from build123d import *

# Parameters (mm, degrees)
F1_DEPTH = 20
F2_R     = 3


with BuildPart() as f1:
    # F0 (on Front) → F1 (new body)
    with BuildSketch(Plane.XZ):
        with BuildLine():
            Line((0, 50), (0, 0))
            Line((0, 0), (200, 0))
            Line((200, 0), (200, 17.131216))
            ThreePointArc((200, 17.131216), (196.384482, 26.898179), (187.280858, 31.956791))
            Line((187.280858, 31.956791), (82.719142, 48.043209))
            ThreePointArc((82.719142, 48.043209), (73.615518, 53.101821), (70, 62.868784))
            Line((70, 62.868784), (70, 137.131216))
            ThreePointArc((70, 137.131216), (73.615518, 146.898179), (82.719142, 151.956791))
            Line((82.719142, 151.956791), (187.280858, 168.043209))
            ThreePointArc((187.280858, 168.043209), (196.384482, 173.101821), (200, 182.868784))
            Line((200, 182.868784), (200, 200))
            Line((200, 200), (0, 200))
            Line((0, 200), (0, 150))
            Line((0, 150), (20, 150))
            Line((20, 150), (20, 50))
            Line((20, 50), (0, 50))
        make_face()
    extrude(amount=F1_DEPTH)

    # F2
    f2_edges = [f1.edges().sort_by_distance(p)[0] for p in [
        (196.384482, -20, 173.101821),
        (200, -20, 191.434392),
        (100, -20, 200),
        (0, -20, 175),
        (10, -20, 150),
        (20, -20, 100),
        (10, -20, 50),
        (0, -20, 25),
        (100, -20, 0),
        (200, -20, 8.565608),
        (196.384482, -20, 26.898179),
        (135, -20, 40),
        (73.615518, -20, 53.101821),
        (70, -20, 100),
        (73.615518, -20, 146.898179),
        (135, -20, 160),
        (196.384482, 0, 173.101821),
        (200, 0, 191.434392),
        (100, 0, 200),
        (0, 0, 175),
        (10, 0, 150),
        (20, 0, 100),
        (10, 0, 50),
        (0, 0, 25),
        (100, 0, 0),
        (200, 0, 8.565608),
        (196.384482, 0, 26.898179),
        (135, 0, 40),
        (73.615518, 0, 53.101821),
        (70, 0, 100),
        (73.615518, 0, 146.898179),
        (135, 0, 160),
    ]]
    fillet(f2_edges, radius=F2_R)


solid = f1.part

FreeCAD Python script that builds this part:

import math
import FreeCAD as App
import Part
import Sketcher
Q = App.Units.Quantity


def edges_at(feature, points):
    """Names of the edges that pass closest to the given points."""
    edges = feature.Shape.Edges
    near = lambda p: min(range(len(edges)), key=lambda i: edges[i].distToShape(Part.Vertex(*p))[0])
    return sorted({f"Edge{near(p) + 1}" for p in points})

doc = App.newDocument("Part")
body = doc.addObject("PartDesign::Body", "Body")

sketch1 = body.newObject("Sketcher::SketchObject", "Sketch")
sketch1.AttachmentSupport = (doc.getObject("XZ_Plane"), [""])
sketch1.MapMode = "FlatFace"
sketch1.addGeometry([
    Part.LineSegment(App.Vector(0, 50, 0), App.Vector(0, 0, 0)),
    Part.LineSegment(App.Vector(0, 0, 0), App.Vector(200, 0, 0)),
    Part.LineSegment(App.Vector(200, 0, 0), App.Vector(200, 17.131216, 0)),
    Part.ArcOfCircle(Part.Circle(App.Vector(185.000001, 17.131216, 0), App.Vector(0, 0, 1), 14.999999), math.radians(0), math.radians(81.253839)),
    Part.LineSegment(App.Vector(187.280858, 31.956791, 0), App.Vector(82.719142, 48.043209, 0)),
    Part.ArcOfCircle(Part.Circle(App.Vector(84.999999, 62.868784, 0), App.Vector(0, 0, 1), 14.999999), math.radians(180), math.radians(261.253839)),
    Part.LineSegment(App.Vector(70, 62.868784, 0), App.Vector(70, 137.131216, 0)),
    Part.ArcOfCircle(Part.Circle(App.Vector(84.999999, 137.131216, 0), App.Vector(0, 0, 1), 14.999999), math.radians(98.746161), math.radians(180)),
    Part.LineSegment(App.Vector(82.719142, 151.956791, 0), App.Vector(187.280858, 168.043209, 0)),
    Part.ArcOfCircle(Part.Circle(App.Vector(185.000001, 182.868784, 0), App.Vector(0, 0, 1), 14.999999), math.radians(-81.253839), math.radians(0)),
    Part.LineSegment(App.Vector(200, 182.868784, 0), App.Vector(200, 200, 0)),
    Part.LineSegment(App.Vector(200, 200, 0), App.Vector(0, 200, 0)),
    Part.LineSegment(App.Vector(0, 200, 0), App.Vector(0, 150, 0)),
    Part.LineSegment(App.Vector(0, 150, 0), App.Vector(20, 150, 0)),
    Part.LineSegment(App.Vector(20, 150, 0), App.Vector(20, 50, 0)),
    Part.LineSegment(App.Vector(20, 50, 0), App.Vector(0, 50, 0)),
], False)
sketch1.addConstraint([
    Sketcher.Constraint("Coincident", 0, 2, 1, 1),
    Sketcher.Constraint("Coincident", 1, 2, 2, 1),
    Sketcher.Constraint("Tangent", 2, 2, 3, 1),
    Sketcher.Constraint("Tangent", 3, 2, 4, 1),
    Sketcher.Constraint("Tangent", 4, 2, 5, 2),
    Sketcher.Constraint("Tangent", 5, 1, 6, 1),
    Sketcher.Constraint("Tangent", 6, 2, 7, 2),
    Sketcher.Constraint("Tangent", 7, 1, 8, 1),
    Sketcher.Constraint("Tangent", 8, 2, 9, 1),
    Sketcher.Constraint("Tangent", 9, 2, 10, 1),
    Sketcher.Constraint("Coincident", 10, 2, 11, 1),
    Sketcher.Constraint("Coincident", 11, 2, 12, 1),
    Sketcher.Constraint("Coincident", 12, 2, 13, 1),
    Sketcher.Constraint("Coincident", 13, 2, 14, 1),
    Sketcher.Constraint("Coincident", 14, 2, 15, 1),
    Sketcher.Constraint("Coincident", 15, 2, 0, 1),
    Sketcher.Constraint("Vertical", 0),
    Sketcher.Constraint("Horizontal", 1),
    Sketcher.Constraint("Vertical", 2),
    Sketcher.Constraint("Vertical", 6),
    Sketcher.Constraint("Vertical", 10),
    Sketcher.Constraint("Horizontal", 11),
    Sketcher.Constraint("Vertical", 12),
    Sketcher.Constraint("Horizontal", 13),
    Sketcher.Constraint("Vertical", 14),
    Sketcher.Constraint("Horizontal", 15),
    Sketcher.Constraint("Coincident", 0, 2, -1, 1),
    Sketcher.Constraint("Equal", 3, 5),
    Sketcher.Constraint("Equal", 5, 7),
    Sketcher.Constraint("Equal", 7, 9),
    Sketcher.Constraint("PointOnObject", 11, 2, -2),
    Sketcher.Constraint("Vertical", 3, 3, 9, 3),
    Sketcher.Constraint("Vertical", 4, 2, 7, 1),
    Sketcher.Constraint("Equal", 2, 10),
    Sketcher.Constraint("Equal", 0, 12),
    Sketcher.Constraint("Radius", 3, Q("14.999999 mm")),
    Sketcher.Constraint("DistanceX", 1, 1, 1, 2, Q("200 mm")),
    Sketcher.Constraint("DistanceX", 13, 1, 13, 2, Q("20 mm")),
    Sketcher.Constraint("DistanceY", 0, 2, 0, 1, Q("50 mm")),
    Sketcher.Constraint("DistanceY", 14, 2, 14, 1, Q("100 mm")),
    Sketcher.Constraint("DistanceX", -1, 1, 5, 3, Q("84.999999 mm")),
    Sketcher.Constraint("DistanceY", 3, 3, 7, 3, Q("120 mm")),
    Sketcher.Constraint("DistanceY", 6, 1, 6, 2, Q("74.262432 mm")),
])
pad1 = body.newObject("PartDesign::Pad", "Pad")
pad1.Profile = sketch1
pad1.Length = 20
doc.recompute()

fillet = body.newObject("PartDesign::Fillet", "Fillet")
fillet.Base = (pad1, edges_at(pad1, [
    (196.384, -20, 173.102),
    (200, -20, 191.434),
    (100, -20, 200),
    (0, -20, 175),
    (10, -20, 150),
    (20, -20, 100),
    (10, -20, 50),
    (0, -20, 25),
    (100, -20, 0),
    (200, -20, 8.566),
    (196.384, -20, 26.898),
    (135, -20, 40),
    (73.616, -20, 53.102),
    (70, -20, 100),
    (73.616, -20, 146.898),
    (135, -20, 160),
    (196.384, 0, 173.102),
    (200, 0, 191.434),
    (100, 0, 200),
    (0, 0, 175),
    (10, 0, 150),
    (20, 0, 100),
    (10, 0, 50),
    (0, 0, 25),
    (100, 0, 0),
    (200, 0, 8.566),
    (196.384, 0, 26.898),
    (135, 0, 40),
    (73.616, 0, 53.102),
    (70, 0, 100),
    (73.616, 0, 146.898),
    (135, 0, 160),
]))
fillet.Radius = 3

doc.recompute()
